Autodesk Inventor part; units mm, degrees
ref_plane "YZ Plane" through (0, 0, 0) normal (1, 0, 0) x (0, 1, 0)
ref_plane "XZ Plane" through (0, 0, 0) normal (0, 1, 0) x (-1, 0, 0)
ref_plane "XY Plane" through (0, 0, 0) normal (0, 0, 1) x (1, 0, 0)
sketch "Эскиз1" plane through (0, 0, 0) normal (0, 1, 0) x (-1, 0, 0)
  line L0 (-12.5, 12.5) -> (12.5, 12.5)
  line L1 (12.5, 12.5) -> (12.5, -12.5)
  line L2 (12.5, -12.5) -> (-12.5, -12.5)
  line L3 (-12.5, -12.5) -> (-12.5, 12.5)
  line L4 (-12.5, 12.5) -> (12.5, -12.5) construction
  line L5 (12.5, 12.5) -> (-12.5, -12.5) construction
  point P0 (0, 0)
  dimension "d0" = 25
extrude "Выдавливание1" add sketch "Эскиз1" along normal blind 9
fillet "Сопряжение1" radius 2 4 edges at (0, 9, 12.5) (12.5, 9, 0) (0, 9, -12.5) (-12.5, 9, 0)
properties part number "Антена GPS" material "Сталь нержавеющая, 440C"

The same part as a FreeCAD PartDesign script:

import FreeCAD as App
import Part
import Sketcher
from FreeCAD import Vector


def edges_at(feature, points):
    """Names of the edges that pass closest to the given points."""
    edges = feature.Shape.Edges
    near = lambda p: min(range(len(edges)), key=lambda i: edges[i].distToShape(Part.Vertex(*p))[0])
    return sorted({f"Edge{near(p) + 1}" for p in points})


def add_polygon(sketch, points):
    """Adds a closed chain of lines whose ends are joined by coincident constraints."""
    first, n = sketch.GeometryCount, len(points)
    for a, b in zip(points, points[1:] + points[:1]):
        sketch.addGeometry(Part.LineSegment(App.Vector(*a, 0), App.Vector(*b, 0)), False)
    for i in range(n):
        sketch.addConstraint(Sketcher.Constraint("Coincident", first + i, 2, first + (i + 1) % n, 1))

doc = App.newDocument("Part")
body = doc.addObject("PartDesign::Body", "Body")

# Sketch on XZ plane
sketch1 = body.newObject("Sketcher::SketchObject", "Sketch")
sketch1.AttachmentSupport = (doc.getObject("XZ_Plane"), [""])
sketch1.MapMode = "FlatFace"
add_polygon(sketch1, [(-12, 12), (12, 12), (12, -12), (-12, -12)])  # lines 0-3
sketch1.addConstraint([
    Sketcher.Constraint("Horizontal", 0),
    Sketcher.Constraint("Vertical", 1),
    Sketcher.Constraint("Horizontal", 2),
    Sketcher.Constraint("Vertical", 3),
    Sketcher.Constraint("Symmetric", 0, 2, 2, 2, -1, 1),
    Sketcher.Constraint("Equal", 2, 1),
    Sketcher.Constraint("DistanceX", 0, 1, 0, 2, 25.0),
])
pad1 = body.newObject("PartDesign::Pad", "Pad")
pad1.Profile = sketch1
pad1.Length = 9
pad1.Reversed = True
doc.recompute()

fillet = body.newObject("PartDesign::Fillet", "Fillet")
fillet.Base = (pad1, edges_at(pad1, [
    (0, 9, 12.5),
    (12.5, 9, 0),
    (0, 9, -12.5),
    (-12.5, 9, 0),
]))
fillet.Radius = 2

doc.recompute()
